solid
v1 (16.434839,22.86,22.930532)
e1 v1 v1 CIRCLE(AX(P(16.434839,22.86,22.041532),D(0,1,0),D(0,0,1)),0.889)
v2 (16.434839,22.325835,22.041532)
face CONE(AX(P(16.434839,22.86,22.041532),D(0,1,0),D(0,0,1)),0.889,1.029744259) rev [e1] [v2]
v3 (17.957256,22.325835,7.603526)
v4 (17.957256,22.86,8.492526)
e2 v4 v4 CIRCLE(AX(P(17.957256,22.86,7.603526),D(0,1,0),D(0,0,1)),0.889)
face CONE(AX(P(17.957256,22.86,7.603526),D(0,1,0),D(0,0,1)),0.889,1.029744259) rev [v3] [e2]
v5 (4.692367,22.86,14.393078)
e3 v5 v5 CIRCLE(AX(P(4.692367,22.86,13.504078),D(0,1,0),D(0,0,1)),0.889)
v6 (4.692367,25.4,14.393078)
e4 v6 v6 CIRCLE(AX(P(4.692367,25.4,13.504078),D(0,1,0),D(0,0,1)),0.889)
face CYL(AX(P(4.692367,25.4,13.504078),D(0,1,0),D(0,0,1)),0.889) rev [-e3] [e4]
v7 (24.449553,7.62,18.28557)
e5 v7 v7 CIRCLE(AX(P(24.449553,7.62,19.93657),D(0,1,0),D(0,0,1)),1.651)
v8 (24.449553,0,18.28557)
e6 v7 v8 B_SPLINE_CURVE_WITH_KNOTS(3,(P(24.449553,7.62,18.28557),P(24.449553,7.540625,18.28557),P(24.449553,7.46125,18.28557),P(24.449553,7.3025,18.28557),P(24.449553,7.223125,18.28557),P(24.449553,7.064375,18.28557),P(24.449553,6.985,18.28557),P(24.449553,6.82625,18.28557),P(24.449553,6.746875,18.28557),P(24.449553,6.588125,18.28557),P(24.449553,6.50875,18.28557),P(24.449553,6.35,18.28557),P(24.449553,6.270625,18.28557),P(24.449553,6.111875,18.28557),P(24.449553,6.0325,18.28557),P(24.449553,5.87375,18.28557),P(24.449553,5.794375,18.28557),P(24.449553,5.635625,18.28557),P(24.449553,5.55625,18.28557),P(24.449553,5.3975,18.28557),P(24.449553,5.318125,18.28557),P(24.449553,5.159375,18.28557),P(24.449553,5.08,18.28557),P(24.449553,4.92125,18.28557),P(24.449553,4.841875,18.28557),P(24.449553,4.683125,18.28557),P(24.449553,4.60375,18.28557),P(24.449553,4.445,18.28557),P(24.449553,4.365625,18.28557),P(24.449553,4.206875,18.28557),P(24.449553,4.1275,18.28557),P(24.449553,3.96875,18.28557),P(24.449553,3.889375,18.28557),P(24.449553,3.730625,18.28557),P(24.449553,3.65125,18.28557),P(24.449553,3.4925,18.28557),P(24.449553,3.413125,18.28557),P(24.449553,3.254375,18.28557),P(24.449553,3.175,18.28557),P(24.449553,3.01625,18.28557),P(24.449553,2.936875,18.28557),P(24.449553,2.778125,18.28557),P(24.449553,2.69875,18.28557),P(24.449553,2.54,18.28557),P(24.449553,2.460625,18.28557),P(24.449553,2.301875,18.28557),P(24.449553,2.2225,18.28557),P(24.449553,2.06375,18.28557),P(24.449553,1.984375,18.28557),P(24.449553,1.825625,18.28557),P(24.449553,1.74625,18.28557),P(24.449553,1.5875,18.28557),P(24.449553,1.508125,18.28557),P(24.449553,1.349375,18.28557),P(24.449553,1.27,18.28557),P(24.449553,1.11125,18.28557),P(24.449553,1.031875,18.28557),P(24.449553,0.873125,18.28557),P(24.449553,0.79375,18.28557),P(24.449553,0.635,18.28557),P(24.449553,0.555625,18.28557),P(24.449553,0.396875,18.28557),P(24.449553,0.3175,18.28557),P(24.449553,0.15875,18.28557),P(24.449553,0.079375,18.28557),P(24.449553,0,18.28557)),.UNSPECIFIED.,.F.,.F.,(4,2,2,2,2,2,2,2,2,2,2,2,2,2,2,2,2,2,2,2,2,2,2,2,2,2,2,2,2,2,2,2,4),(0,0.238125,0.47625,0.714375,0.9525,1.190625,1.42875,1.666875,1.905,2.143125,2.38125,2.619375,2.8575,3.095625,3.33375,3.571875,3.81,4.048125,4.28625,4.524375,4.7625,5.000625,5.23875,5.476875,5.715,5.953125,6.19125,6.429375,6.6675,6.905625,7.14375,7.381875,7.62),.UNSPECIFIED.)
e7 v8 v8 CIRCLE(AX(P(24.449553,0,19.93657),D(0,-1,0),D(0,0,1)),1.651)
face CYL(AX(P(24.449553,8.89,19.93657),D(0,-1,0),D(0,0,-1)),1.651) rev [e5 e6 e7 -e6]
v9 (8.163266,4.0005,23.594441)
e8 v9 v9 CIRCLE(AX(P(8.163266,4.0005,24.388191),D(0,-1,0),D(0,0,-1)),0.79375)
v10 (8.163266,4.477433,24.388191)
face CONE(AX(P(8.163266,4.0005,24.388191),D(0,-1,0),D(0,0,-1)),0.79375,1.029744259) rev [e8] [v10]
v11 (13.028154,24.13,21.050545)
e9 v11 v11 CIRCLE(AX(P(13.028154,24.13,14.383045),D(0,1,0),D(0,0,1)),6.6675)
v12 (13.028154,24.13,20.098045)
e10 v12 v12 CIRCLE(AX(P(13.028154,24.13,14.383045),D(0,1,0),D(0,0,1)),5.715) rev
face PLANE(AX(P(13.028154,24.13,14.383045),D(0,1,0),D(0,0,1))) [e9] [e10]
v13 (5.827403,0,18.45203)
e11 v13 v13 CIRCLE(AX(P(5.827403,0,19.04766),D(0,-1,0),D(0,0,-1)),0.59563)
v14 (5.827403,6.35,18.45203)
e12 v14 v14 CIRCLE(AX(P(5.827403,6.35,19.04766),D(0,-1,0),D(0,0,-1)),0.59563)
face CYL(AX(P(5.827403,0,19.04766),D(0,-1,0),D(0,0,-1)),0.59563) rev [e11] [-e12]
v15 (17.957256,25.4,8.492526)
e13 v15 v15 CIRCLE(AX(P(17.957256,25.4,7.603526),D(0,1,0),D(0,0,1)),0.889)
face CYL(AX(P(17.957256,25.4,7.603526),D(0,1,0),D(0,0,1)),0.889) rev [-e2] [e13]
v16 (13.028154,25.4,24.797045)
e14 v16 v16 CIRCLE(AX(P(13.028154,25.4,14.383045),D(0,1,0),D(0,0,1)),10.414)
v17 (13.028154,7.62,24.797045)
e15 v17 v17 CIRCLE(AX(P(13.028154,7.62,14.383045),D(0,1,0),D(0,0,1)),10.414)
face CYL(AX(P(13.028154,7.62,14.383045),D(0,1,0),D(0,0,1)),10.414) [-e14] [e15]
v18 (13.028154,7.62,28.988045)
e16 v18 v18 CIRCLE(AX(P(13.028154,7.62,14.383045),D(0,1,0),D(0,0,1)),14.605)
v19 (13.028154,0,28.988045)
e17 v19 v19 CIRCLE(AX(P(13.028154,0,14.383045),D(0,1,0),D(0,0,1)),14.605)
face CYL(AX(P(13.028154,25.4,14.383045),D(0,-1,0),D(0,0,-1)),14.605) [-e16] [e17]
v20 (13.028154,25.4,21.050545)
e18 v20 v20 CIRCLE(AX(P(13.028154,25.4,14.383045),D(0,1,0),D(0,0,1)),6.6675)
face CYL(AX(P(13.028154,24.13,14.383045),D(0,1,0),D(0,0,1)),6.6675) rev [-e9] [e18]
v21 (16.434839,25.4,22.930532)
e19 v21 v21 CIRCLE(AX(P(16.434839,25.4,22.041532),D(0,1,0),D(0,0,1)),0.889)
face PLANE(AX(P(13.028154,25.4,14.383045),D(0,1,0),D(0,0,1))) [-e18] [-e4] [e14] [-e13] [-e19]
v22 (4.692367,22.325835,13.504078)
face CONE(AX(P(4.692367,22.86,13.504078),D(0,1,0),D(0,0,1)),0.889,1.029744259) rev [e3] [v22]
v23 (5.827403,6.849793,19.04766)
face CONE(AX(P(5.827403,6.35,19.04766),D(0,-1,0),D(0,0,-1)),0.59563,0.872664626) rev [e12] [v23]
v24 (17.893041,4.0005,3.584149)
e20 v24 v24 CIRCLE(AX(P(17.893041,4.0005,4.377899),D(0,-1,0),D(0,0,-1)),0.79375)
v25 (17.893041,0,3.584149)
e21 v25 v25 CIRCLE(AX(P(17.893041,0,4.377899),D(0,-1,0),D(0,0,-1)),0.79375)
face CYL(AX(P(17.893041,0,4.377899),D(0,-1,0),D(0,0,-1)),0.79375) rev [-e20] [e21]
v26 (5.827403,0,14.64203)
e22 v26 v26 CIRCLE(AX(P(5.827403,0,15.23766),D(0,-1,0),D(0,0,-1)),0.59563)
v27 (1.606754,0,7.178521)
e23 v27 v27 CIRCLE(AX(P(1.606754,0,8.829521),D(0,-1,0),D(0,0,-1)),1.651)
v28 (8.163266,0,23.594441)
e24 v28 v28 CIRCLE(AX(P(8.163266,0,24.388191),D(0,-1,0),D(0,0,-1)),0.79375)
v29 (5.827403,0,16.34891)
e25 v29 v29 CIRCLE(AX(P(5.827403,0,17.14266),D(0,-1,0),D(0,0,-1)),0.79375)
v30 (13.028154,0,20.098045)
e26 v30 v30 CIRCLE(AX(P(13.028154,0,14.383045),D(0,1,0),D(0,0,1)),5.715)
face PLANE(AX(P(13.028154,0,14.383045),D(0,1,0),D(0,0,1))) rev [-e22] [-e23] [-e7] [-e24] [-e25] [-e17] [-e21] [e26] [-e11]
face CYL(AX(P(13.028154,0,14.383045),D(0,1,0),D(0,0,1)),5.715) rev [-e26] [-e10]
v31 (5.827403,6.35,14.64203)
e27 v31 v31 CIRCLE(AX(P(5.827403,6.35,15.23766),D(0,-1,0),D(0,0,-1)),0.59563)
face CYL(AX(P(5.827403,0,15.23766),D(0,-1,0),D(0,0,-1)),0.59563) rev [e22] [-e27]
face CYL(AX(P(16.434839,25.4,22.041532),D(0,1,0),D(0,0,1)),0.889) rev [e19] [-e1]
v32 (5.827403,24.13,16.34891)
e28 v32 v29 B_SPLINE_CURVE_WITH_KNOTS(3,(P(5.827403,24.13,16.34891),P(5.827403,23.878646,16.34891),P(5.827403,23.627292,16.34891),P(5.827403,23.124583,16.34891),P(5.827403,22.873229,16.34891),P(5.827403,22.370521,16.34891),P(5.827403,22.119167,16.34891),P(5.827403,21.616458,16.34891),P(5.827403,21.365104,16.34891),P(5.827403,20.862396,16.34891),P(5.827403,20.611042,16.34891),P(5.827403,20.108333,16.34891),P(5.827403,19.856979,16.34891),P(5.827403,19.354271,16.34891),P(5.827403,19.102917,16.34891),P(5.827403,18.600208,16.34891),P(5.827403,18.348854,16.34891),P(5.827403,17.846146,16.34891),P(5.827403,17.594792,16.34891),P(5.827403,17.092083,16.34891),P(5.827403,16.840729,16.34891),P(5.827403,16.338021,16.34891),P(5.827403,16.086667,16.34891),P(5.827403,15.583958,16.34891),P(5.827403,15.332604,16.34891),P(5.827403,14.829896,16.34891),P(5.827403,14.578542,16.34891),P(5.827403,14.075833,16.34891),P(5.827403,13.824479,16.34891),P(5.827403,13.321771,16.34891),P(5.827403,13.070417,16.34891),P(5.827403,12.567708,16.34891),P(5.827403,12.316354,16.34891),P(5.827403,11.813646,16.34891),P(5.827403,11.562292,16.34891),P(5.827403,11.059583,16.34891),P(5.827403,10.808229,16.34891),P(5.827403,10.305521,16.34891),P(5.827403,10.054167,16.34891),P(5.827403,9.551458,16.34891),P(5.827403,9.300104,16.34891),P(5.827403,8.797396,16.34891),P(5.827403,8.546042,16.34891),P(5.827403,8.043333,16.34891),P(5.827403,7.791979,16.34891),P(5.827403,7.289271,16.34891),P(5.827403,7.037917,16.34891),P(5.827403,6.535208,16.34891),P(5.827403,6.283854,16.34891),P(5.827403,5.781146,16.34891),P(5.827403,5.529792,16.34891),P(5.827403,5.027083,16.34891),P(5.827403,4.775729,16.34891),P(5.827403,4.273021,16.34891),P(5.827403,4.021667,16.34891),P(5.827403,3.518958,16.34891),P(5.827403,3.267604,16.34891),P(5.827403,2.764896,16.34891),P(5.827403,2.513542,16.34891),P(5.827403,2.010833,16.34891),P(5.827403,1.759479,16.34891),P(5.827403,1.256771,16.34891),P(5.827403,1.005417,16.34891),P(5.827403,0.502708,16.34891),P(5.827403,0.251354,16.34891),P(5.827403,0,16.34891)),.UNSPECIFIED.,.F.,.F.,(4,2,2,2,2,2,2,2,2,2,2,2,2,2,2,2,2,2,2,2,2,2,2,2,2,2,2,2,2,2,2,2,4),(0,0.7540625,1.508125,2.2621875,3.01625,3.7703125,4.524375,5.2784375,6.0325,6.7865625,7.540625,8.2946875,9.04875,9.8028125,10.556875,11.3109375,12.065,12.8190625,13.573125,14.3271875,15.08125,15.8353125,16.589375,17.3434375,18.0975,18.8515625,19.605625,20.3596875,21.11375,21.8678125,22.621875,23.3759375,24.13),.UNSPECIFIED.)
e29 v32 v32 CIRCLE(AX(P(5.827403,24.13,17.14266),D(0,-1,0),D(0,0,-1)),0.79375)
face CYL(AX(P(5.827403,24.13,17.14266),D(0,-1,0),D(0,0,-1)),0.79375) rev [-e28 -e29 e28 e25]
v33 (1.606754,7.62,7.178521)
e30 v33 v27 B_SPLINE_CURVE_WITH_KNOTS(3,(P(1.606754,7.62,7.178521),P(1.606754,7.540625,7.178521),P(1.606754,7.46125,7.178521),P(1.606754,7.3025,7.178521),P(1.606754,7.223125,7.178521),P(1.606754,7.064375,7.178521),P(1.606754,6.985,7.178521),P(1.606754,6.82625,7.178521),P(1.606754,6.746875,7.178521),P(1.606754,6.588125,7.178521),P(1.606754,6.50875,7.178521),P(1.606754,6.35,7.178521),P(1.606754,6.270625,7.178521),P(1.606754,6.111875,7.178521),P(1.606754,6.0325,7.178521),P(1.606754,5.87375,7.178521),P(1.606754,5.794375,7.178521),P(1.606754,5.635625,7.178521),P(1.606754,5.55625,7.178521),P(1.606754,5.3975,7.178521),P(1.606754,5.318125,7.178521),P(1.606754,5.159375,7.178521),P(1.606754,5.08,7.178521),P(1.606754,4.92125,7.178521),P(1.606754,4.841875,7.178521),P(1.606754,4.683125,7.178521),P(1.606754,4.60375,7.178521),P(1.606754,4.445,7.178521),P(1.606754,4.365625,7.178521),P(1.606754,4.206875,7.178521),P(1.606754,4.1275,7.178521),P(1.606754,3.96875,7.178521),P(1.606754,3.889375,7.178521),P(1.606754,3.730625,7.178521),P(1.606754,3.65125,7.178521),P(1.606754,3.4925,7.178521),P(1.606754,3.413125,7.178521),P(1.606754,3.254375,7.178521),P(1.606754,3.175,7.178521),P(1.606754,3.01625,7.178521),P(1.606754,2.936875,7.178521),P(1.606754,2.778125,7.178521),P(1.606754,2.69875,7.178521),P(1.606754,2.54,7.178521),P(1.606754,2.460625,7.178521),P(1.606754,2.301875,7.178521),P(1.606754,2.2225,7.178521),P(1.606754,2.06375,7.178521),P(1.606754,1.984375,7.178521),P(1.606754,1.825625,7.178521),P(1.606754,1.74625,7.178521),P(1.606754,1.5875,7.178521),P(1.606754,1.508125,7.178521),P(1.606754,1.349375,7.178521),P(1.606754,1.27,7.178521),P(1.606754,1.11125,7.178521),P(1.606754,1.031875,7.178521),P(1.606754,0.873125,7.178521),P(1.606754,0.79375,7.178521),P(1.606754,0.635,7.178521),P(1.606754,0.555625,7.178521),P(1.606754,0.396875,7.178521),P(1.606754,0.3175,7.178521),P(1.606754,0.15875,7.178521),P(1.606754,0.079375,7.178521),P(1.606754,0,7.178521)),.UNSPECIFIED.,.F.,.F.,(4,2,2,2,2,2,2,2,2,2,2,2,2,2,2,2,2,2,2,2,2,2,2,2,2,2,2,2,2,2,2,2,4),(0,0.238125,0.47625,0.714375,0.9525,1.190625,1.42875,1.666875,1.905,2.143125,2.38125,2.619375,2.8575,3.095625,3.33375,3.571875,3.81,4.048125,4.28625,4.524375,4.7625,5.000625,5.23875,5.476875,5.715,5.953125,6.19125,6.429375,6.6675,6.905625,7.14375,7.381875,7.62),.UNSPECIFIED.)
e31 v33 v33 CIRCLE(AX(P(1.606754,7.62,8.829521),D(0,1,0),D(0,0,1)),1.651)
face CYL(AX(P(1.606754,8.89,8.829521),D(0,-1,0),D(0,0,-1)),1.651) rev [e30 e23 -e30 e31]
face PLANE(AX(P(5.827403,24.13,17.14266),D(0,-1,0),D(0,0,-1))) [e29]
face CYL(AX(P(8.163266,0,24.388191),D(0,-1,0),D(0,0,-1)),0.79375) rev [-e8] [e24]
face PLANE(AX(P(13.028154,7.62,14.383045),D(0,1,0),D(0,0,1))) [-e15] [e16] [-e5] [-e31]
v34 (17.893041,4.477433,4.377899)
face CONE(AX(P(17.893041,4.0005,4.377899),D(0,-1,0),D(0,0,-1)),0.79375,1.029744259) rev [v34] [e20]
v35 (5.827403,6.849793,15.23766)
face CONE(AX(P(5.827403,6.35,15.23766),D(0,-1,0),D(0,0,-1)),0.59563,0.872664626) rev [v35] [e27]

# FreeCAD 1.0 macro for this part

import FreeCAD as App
import Part
import Sketcher
from FreeCAD import Vector
Q = App.Units.Quantity

doc = App.newDocument("Part")
body = doc.addObject("PartDesign::Body", "Body")

# Sketch on XZ plane
sketch1 = body.newObject("Sketcher::SketchObject", "Sketch")
sketch1.AttachmentSupport = (doc.getObject("XZ_Plane"), [""])
sketch1.MapMode = "FlatFace"
sketch1.addGeometry(Part.Circle(Vector(13.028154, 14.383045, 0), Vector(0, 0, 1), 14.605), False)
sketch1.addConstraint([
    Sketcher.Constraint("Diameter", 0, Q("1.15 in")),
    Sketcher.Constraint("DistanceX", -1, 1, 0, 3, 13.028154),
    Sketcher.Constraint("DistanceY", -1, 1, 0, 3, 14.383045),
])
pad1 = body.newObject("PartDesign::Pad", "Pad")
pad1.Profile = sketch1
pad1.Length = Q("1 in")
pad1.Reversed = True

# Sketch on XZ plane
sketch2 = body.newObject("Sketcher::SketchObject", "Sketch001")
sketch2.AttachmentSupport = (doc.getObject("XZ_Plane"), [""])
sketch2.MapMode = "FlatFace"
sketch2.AttachmentOffset = App.Placement(Vector(0, 0, -1 * 25.4), App.Rotation())
sketch2.addGeometry(Part.Circle(Vector(13.028154, 14.383045, 0), Vector(0, 0, 1), 5.715), False)
sketch2.addConstraint([
    Sketcher.Constraint("Diameter", 0, Q("0.45 in")),
    Sketcher.Constraint("DistanceX", -1, 1, 0, 3, 13.028154),
    Sketcher.Constraint("DistanceY", -1, 1, 0, 3, 14.383045),
])
pocket1 = body.newObject("PartDesign::Pocket", "Pocket")
pocket1.Profile = sketch2
pocket1.Type = "ThroughAll"
pocket1.Reversed = True

# Sketch on XZ plane
sketch3 = body.newObject("Sketcher::SketchObject", "Sketch002")
sketch3.AttachmentSupport = (doc.getObject("XZ_Plane"), [""])
sketch3.MapMode = "FlatFace"
sketch3.AttachmentOffset = App.Placement(Vector(0, 0, -1 * 25.4), App.Rotation())
sketch3.addGeometry(Part.Circle(Vector(13.028154, 14.383045, 0), Vector(0, 0, 1), 6.6675), False)
sketch3.addConstraint([
    Sketcher.Constraint("Diameter", 0, Q("0.525 in")),
    Sketcher.Constraint("DistanceX", -1, 1, 0, 3, 13.028154),
    Sketcher.Constraint("DistanceY", -1, 1, 0, 3, 14.383045),
])
pocket2 = body.newObject("PartDesign::Pocket", "Pocket001")
pocket2.Profile = sketch3
pocket2.Length = Q("0.05 in")
pocket2.Reversed = True

# Sketch on XZ plane
sketch4 = body.newObject("Sketcher::SketchObject", "Sketch003")
sketch4.AttachmentSupport = (doc.getObject("XZ_Plane"), [""])
sketch4.MapMode = "FlatFace"
sketch4.AttachmentOffset = App.Placement(Vector(0, 0, -1 * 25.4), App.Rotation())
sketch4.addGeometry([
    Part.LineSegment(Vector(-7.426, -6.071, 0), Vector(-7.426, 34.837, 0)),  # 0
    Part.LineSegment(Vector(-7.426, 34.837, 0), Vector(33.482, 34.837, 0)),  # 1
    Part.LineSegment(Vector(33.482, 34.837, 0), Vector(33.482, -6.071, 0)),  # 2
    Part.LineSegment(Vector(33.482, -6.071, 0), Vector(-7.426, -6.071, 0)),  # 3
    Part.Circle(Vector(13.028154, 14.383045, 0), Vector(0, 0, 1), 10.414),  # 4
], False)
sketch4.addConstraint([
    Sketcher.Constraint("Coincident", 0, 2, 1, 1),
    Sketcher.Constraint("Coincident", 1, 2, 2, 1),
    Sketcher.Constraint("Coincident", 2, 2, 3, 1),
    Sketcher.Constraint("Coincident", 3, 2, 0, 1),
    Sketcher.Constraint("Vertical", 0),
    Sketcher.Constraint("Horizontal", 1),
    Sketcher.Constraint("Vertical", 2),
    Sketcher.Constraint("Horizontal", 3),
    Sketcher.Constraint("Equal", 3, 0),
    Sketcher.Constraint("Diameter", 4, Q("0.82 in")),
    Sketcher.Constraint("DistanceX", 1, 1, 1, 2, 40.908),
    Sketcher.Constraint("DistanceX", 0, 2, -1, 1, 7.426),
    Sketcher.Constraint("DistanceY", -1, 1, 0, 2, 34.837),
    Sketcher.Constraint("DistanceX", -1, 1, 4, 3, 13.028154),
    Sketcher.Constraint("DistanceY", -1, 1, 4, 3, 14.383045),
])
pocket3 = body.newObject("PartDesign::Pocket", "Pocket002")
pocket3.Profile = sketch4
pocket3.Length = Q("0.7 in")
pocket3.Reversed = True

# Sketch on YZ plane
sketch5 = body.newObject("Sketcher::SketchObject", "Sketch004")
sketch5.AttachmentSupport = (doc.getObject("YZ_Plane"), [""])
sketch5.MapMode = "FlatFace"
sketch5.AttachmentOffset = App.Placement(Vector(0, 0, 4.692367), App.Rotation())
sketch5.addGeometry([
    Part.LineSegment(Vector(22.325835, 13.504078, 0), Vector(25.4, 13.504078, 0)),
    Part.LineSegment(Vector(25.4, 13.504078, 0), Vector(25.4, 14.393078, 0)),
    Part.LineSegment(Vector(25.4, 14.393078, 0), Vector(22.86, 14.393078, 0)),
    Part.LineSegment(Vector(22.86, 14.393078, 0), Vector(22.325835, 13.504078, 0)),
], False)
sketch5.addGeometry(Part.LineSegment(Vector(25.4, 13.504078, 0), Vector(22.325835, 13.504078, 0)), True)  # axis
sketch5.addConstraint([
    Sketcher.Constraint("Coincident", 0, 2, 1, 1),
    Sketcher.Constraint("Coincident", 1, 2, 2, 1),
    Sketcher.Constraint("Coincident", 2, 2, 3, 1),
    Sketcher.Constraint("Coincident", 3, 2, 0, 1),
    Sketcher.Constraint("Horizontal", 0),
    Sketcher.Constraint("Vertical", 1),
    Sketcher.Constraint("Horizontal", 2),
    Sketcher.Constraint("Horizontal", 4),
    Sketcher.Constraint("Coincident", 4, 1, 0, 2),
    Sketcher.Constraint("Equal", 0, 4),
    Sketcher.Constraint("DistanceX", 2, 2, 2, 1, Q("0.1 in")),
    Sketcher.Constraint("DistanceX", -1, 1, 0, 2, Q("1 in")),
    Sketcher.Constraint("Angle", 3, Q("-121 deg")),
    Sketcher.Constraint("DistanceY", 1, 1, 1, 2, Q("0.035 in")),
    Sketcher.Constraint("DistanceY", -1, 1, 0, 2, 13.504078),
])
groove = body.newObject("PartDesign::Groove", "Groove")
groove.Profile = sketch5
groove.ReferenceAxis = (sketch5, ["Axis0"])
groove.Angle = 360
doc.recompute()

datumline = body.newObject("PartDesign::Line", "DatumLine")
datumline.Placement = App.Placement(Vector(13.028154, 0, 14.383045), App.Rotation(Vector(0, 0, 1), Vector(0, 1, 0)))
polarpattern = body.newObject("PartDesign::PolarPattern", "PolarPattern")
polarpattern.Originals = [groove]
polarpattern.Axis = (datumline, [""])
polarpattern.Angle = 360
polarpattern.Occurrences = 3
body.Tip = polarpattern

# Sketch on YZ plane
sketch6 = body.newObject("Sketcher::SketchObject", "Sketch005")
sketch6.AttachmentSupport = (doc.getObject("YZ_Plane"), [""])
sketch6.MapMode = "FlatFace"
sketch6.AttachmentOffset = App.Placement(Vector(0, 0, 8.163266), App.Rotation())
sketch6.addGeometry([
    Part.LineSegment(Vector(4.477433, 24.388191, 0), Vector(0, 24.388191, 0)),
    Part.LineSegment(Vector(0, 24.388191, 0), Vector(0, 23.594441, 0)),
    Part.LineSegment(Vector(0, 23.594441, 0), Vector(4.0005, 23.594441, 0)),
    Part.LineSegment(Vector(4.0005, 23.594441, 0), Vector(4.477433, 24.388191, 0)),
], False)
sketch6.addGeometry(Part.LineSegment(Vector(0, 24.388191, 0), Vector(4.477433, 24.388191, 0)), True)  # axis
sketch6.addConstraint([
    Sketcher.Constraint("Coincident", 0, 2, 1, 1),
    Sketcher.Constraint("Coincident", 1, 2, 2, 1),
    Sketcher.Constraint("Coincident", 2, 2, 3, 1),
    Sketcher.Constraint("Coincident", 3, 2, 0, 1),
    Sketcher.Constraint("Horizontal", 0),
    Sketcher.Constraint("Vertical", 1),
    Sketcher.Constraint("Horizontal", 2),
    Sketcher.Constraint("Horizontal", 4),
    Sketcher.Constraint("Coincident", 4, 1, 0, 2),
    Sketcher.Constraint("PointOnObject", 0, 2, -2),
    Sketcher.Constraint("Equal", 0, 4),
    Sketcher.Constraint("Angle", 3, Q("59 deg")),
    Sketcher.Constraint("DistanceY", 1, 2, 1, 1, Q("0.03125 in")),
    Sketcher.Constraint("DistanceX", 2, 1, 2, 2, Q("0.1575 in")),
    Sketcher.Constraint("DistanceY", -1, 1, 0, 2, 24.388191),
])
groove2 = body.newObject("PartDesign::Groove", "Groove001")
groove2.Profile = sketch6
groove2.ReferenceAxis = (sketch6, ["Axis0"])
groove2.Angle = 360
doc.recompute()

datumline2 = body.newObject("PartDesign::Line", "DatumLine001")
datumline2.Placement = App.Placement(Vector(13.028154, 0, 14.383045), App.Rotation(Vector(0, 0, 1), Vector(0, 1, 0)))
polarpattern2 = body.newObject("PartDesign::PolarPattern", "PolarPattern001")
polarpattern2.Originals = [groove2]
polarpattern2.Axis = (datumline2, [""])
polarpattern2.Angle = 360
polarpattern2.Occurrences = 2
body.Tip = polarpattern2

# Sketch on XZ plane
sketch7 = body.newObject("Sketcher::SketchObject", "Sketch006")
sketch7.AttachmentSupport = (doc.getObject("XZ_Plane"), [""])
sketch7.MapMode = "FlatFace"
sketch7.addGeometry(Part.Circle(Vector(1.606754, 8.829521, 0), Vector(0, 0, 1), 1.651), False)
sketch7.addConstraint([
    Sketcher.Constraint("Diameter", 0, Q("0.13 in")),
    Sketcher.Constraint("DistanceY", -1, 1, 0, 3, 8.829521),
    Sketcher.Constraint("DistanceX", -1, 1, 0, 3, 1.606754),
])
pocket4 = body.newObject("PartDesign::Pocket", "Pocket003")
pocket4.Profile = sketch7
pocket4.Length = Q("0.35 in")
doc.recompute()

datumline3 = body.newObject("PartDesign::Line", "DatumLine002")
datumline3.Placement = App.Placement(Vector(13.028154, 0, 14.383045), App.Rotation(Vector(0, 0, 1), Vector(0, 1, 0)))
polarpattern3 = body.newObject("PartDesign::PolarPattern", "PolarPattern002")
polarpattern3.Originals = [pocket4]
polarpattern3.Axis = (datumline3, [""])
polarpattern3.Angle = 360
polarpattern3.Occurrences = 2
body.Tip = polarpattern3

# Sketch on XZ plane
sketch8 = body.newObject("Sketcher::SketchObject", "Sketch007")
sketch8.AttachmentSupport = (doc.getObject("XZ_Plane"), [""])
sketch8.MapMode = "FlatFace"
sketch8.addGeometry(Part.Circle(Vector(5.827403, 17.14266, 0), Vector(0, 0, 1), 0.79375), False)
sketch8.addConstraint([
    Sketcher.Constraint("Diameter", 0, Q("0.0625 in")),
    Sketcher.Constraint("DistanceY", -1, 1, 0, 3, 17.14266),
    Sketcher.Constraint("DistanceX", -1, 1, 0, 3, 5.827403),
])
pocket5 = body.newObject("PartDesign::Pocket", "Pocket004")
pocket5.Profile = sketch8
pocket5.Length = Q("0.95 in")

# Sketch on XZ plane
sketch9 = body.newObject("Sketcher::SketchObject", "Sketch008")
sketch9.AttachmentSupport = (doc.getObject("XZ_Plane"), [""])
sketch9.MapMode = "FlatFace"
sketch9.addGeometry([
    Part.Circle(Vector(5.827403, 15.23766, 0), Vector(0, 0, 1), 0.59563),
    Part.Circle(Vector(5.827403, 19.04766, 0), Vector(0, 0, 1), 0.59563),
], False)
sketch9.addConstraint([
    Sketcher.Constraint("Equal", 0, 1),
    Sketcher.Constraint("Vertical", 0, 3, 1, 3),
    Sketcher.Constraint("Diameter", 0, Q("0.0469 in")),
    Sketcher.Constraint("DistanceY", 0, 3, 1, 3, Q("0.15 in")),
    Sketcher.Constraint("DistanceY", -1, 1, 0, 3, 15.23766),
    Sketcher.Constraint("DistanceX", -1, 1, 0, 3, 5.827403),
])
doc.recompute()
hole = body.newObject("PartDesign::Hole", "Hole")
hole.Profile = sketch9
hole.ThreadType = "None"
hole.Diameter = Q("0.0469 in")
hole.DepthType = "Dimension"
hole.Depth = Q("0.25 in")
hole.DrillPoint = "Angled"
hole.DrillPointAngle = 100

doc.recompute()
